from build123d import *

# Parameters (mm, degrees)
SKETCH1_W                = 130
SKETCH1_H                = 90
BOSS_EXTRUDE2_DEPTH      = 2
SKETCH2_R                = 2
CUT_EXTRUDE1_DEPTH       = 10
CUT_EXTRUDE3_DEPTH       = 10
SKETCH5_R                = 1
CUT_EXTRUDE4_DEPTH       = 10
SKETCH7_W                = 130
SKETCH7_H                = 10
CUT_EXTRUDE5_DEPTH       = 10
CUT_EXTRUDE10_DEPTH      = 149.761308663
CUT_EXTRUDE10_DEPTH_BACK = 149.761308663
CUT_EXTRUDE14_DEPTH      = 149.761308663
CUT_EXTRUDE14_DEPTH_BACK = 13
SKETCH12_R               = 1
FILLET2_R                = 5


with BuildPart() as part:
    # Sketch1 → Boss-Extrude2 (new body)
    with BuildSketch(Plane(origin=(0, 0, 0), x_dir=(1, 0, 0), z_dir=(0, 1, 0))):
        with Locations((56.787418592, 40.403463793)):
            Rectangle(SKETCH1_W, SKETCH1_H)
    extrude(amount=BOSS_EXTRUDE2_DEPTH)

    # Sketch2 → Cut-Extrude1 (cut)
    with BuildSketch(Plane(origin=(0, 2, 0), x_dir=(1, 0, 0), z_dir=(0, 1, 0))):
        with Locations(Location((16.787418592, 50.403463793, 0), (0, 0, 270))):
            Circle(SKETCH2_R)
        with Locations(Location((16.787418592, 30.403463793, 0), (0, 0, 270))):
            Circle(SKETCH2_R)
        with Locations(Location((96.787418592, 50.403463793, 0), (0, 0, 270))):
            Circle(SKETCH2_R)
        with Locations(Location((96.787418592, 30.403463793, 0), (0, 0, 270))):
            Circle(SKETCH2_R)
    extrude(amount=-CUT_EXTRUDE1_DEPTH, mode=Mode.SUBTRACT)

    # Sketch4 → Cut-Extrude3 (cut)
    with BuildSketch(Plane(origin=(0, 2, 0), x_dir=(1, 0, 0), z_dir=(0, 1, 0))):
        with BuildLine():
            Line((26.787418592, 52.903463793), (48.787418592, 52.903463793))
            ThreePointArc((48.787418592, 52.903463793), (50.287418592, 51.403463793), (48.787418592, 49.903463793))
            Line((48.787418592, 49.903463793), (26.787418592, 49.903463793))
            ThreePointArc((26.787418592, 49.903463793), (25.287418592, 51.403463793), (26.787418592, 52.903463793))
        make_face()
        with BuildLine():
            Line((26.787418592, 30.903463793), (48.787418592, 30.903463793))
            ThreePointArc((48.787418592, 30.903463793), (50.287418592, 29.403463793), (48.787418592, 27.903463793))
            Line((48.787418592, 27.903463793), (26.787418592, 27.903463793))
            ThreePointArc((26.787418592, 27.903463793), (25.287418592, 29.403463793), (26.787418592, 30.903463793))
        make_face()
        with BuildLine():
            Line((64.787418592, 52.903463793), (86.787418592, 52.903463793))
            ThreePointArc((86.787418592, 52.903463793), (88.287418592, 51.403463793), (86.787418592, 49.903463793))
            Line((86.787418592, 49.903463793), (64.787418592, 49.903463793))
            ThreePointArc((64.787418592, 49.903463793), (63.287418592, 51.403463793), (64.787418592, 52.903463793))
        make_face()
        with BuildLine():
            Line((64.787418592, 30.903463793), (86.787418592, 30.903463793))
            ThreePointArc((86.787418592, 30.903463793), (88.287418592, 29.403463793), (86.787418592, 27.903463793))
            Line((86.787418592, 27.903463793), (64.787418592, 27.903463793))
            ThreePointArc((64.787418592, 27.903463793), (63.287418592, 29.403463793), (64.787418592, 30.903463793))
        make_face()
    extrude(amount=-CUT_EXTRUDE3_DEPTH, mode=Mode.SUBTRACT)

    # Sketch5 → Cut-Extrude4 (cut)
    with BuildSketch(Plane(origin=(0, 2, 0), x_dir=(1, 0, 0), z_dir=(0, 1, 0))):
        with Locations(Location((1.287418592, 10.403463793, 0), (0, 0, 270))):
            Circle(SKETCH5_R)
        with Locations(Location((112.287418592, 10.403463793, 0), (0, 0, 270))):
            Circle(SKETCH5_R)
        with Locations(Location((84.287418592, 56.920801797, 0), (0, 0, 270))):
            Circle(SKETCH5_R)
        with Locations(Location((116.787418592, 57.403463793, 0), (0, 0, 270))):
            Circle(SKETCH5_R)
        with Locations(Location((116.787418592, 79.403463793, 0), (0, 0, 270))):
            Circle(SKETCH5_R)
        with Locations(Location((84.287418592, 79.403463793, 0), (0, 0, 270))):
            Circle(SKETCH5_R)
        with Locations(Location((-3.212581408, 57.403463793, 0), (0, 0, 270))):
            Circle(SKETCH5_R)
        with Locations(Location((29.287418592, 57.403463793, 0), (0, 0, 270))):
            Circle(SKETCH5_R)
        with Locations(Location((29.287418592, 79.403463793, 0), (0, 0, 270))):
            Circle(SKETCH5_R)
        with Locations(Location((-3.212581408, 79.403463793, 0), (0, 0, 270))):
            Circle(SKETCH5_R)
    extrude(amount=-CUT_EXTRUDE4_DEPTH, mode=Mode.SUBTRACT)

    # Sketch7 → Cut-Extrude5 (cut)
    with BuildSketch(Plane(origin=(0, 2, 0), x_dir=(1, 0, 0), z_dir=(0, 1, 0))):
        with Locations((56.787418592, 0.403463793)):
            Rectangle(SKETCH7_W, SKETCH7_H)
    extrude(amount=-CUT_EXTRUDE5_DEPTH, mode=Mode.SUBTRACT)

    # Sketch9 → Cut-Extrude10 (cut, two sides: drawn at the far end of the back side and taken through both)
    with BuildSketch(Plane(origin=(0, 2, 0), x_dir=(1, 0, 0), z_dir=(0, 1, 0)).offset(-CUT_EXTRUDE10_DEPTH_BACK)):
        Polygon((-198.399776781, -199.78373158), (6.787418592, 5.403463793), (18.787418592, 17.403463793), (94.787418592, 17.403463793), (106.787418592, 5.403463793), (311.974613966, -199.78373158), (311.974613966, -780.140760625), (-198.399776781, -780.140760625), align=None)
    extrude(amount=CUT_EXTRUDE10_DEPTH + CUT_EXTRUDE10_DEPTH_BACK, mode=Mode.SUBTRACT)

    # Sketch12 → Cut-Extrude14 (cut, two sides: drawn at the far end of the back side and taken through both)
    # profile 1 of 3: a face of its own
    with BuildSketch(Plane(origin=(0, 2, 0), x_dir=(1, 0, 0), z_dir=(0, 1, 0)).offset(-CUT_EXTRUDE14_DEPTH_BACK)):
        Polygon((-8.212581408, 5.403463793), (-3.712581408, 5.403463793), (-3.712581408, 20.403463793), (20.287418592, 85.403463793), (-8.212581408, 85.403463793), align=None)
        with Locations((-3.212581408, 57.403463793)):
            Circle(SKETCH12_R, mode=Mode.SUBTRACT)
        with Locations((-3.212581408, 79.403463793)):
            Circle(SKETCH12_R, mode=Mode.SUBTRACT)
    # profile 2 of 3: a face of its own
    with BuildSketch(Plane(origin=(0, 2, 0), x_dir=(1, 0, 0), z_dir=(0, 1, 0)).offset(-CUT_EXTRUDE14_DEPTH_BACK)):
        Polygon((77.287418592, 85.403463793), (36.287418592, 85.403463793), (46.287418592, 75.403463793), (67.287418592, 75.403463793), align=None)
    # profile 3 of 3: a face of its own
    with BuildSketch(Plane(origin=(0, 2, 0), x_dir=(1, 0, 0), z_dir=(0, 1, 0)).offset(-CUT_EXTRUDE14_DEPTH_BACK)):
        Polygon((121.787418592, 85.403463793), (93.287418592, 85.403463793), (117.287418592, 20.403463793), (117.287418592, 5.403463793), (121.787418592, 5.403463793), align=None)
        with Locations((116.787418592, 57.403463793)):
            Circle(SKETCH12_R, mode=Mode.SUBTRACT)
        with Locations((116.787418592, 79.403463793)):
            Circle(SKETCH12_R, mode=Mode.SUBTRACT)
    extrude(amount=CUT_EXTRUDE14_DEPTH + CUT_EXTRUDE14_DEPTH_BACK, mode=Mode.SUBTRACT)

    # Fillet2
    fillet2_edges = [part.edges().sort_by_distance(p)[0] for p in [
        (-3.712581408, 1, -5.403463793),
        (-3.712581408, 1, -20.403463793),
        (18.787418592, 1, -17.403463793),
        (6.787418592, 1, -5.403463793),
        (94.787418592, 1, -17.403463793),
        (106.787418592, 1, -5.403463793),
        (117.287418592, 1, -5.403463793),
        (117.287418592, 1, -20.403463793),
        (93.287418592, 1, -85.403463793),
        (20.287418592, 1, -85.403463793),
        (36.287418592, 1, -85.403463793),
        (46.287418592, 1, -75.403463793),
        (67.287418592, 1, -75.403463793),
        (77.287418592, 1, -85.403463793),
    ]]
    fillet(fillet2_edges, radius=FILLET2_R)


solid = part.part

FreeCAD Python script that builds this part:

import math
import FreeCAD as App
import Part
import Sketcher
Q = App.Units.Quantity


def edges_at(feature, points):
    """Names of the edges that pass closest to the given points."""
    edges = feature.Shape.Edges
    near = lambda p: min(range(len(edges)), key=lambda i: edges[i].distToShape(Part.Vertex(*p))[0])
    return sorted({f"Edge{near(p) + 1}" for p in points})

doc = App.newDocument("Part")
body = doc.addObject("PartDesign::Body", "Body")

sketch1 = body.newObject("Sketcher::SketchObject", "Sketch")
sketch1.AttachmentSupport = (doc.getObject("XZ_Plane"), [""])
sketch1.MapMode = "FlatFace"
sketch1.addGeometry([
    Part.LineSegment(App.Vector(-8, -85, 0), App.Vector(-8, 5, 0)),
    Part.LineSegment(App.Vector(-8, 5, 0), App.Vector(122, 5, 0)),
    Part.LineSegment(App.Vector(122, 5, 0), App.Vector(122, -85, 0)),
    Part.LineSegment(App.Vector(122, -85, 0), App.Vector(-8, -85, 0)),
], False)
sketch1.addConstraint([
    Sketcher.Constraint("Coincident", 0, 2, 1, 1),
    Sketcher.Constraint("Coincident", 1, 2, 2, 1),
    Sketcher.Constraint("Coincident", 2, 2, 3, 1),
    Sketcher.Constraint("Coincident", 3, 2, 0, 1),
    Sketcher.Constraint("Vertical", 0),
    Sketcher.Constraint("Horizontal", 1),
    Sketcher.Constraint("Vertical", 2),
    Sketcher.Constraint("Horizontal", 3),
    Sketcher.Constraint("DistanceX", 1, 1, 1, 2, 130.0),
    Sketcher.Constraint("DistanceY", 0, 1, 0, 2, 90.0),
    Sketcher.Constraint("DistanceX", 0, 2, -1, 1, 8.212581),
    Sketcher.Constraint("DistanceY", -1, 1, 0, 2, 4.596536),
])
pad1 = body.newObject("PartDesign::Pad", "Pad")
pad1.Profile = sketch1
pad1.Length = 2
pad1.Reversed = True

sketch2 = body.newObject("Sketcher::SketchObject", "Sketch001")
sketch2.AttachmentSupport = (doc.getObject("XZ_Plane"), [""])
sketch2.MapMode = "FlatFace"
sketch2.AttachmentOffset = App.Placement(App.Vector(0, 0, -2), App.Rotation())
sketch2.addGeometry([
    Part.Circle(App.Vector(16.8, -50.4, 0), App.Vector(0, 0, 1), 2),
    Part.Circle(App.Vector(16.8, -30.4, 0), App.Vector(0, 0, 1), 2),
    Part.Circle(App.Vector(96.8, -50.4, 0), App.Vector(0, 0, 1), 2),
    Part.Circle(App.Vector(96.8, -30.4, 0), App.Vector(0, 0, 1), 2),
], False)
sketch2.addConstraint([
    Sketcher.Constraint("Equal", 0, 1),
    Sketcher.Constraint("Equal", 1, 2),
    Sketcher.Constraint("Equal", 2, 3),
    Sketcher.Constraint("Horizontal", 0, 3, 2, 3),
    Sketcher.Constraint("Horizontal", 1, 3, 3, 3),
    Sketcher.Constraint("Vertical", 0, 3, 1, 3),
    Sketcher.Constraint("Vertical", 2, 3, 3, 3),
    Sketcher.Constraint("Diameter", 0, 4.0),
    Sketcher.Constraint("DistanceY", 0, 3, 1, 3, 20.0),
    Sketcher.Constraint("DistanceX", 0, 3, 2, 3, 80.0),
    Sketcher.Constraint("DistanceX", -1, 1, 0, 3, 16.787419),
    Sketcher.Constraint("DistanceY", 0, 3, -1, 1, 50.403464),
])
pocket1 = body.newObject("PartDesign::Pocket", "Pocket")
pocket1.Profile = sketch2
pocket1.Length = 10
pocket1.Reversed = True

sketch3 = body.newObject("Sketcher::SketchObject", "Sketch002")
sketch3.AttachmentSupport = (doc.getObject("XZ_Plane"), [""])
sketch3.MapMode = "FlatFace"
sketch3.AttachmentOffset = App.Placement(App.Vector(0, 0, -2), App.Rotation())
sketch3.addGeometry([
    Part.LineSegment(App.Vector(48.8, -52.9, 0), App.Vector(26.8, -52.9, 0)),
    Part.ArcOfCircle(Part.Circle(App.Vector(26.8, -51.4, 0), App.Vector(0, 0, 1), 1.5), math.radians(90), math.radians(270)),
    Part.LineSegment(App.Vector(26.8, -49.9, 0), App.Vector(48.8, -49.9, 0)),
    Part.ArcOfCircle(Part.Circle(App.Vector(48.8, -51.4, 0), App.Vector(0, 0, 1), 1.5), math.radians(-90), math.radians(90)),
    Part.LineSegment(App.Vector(48.8, -30.9, 0), App.Vector(26.8, -30.9, 0)),
    Part.ArcOfCircle(Part.Circle(App.Vector(26.8, -29.4, 0), App.Vector(0, 0, 1), 1.5), math.radians(90), math.radians(270)),
    Part.LineSegment(App.Vector(26.8, -27.9, 0), App.Vector(48.8, -27.9, 0)),
    Part.ArcOfCircle(Part.Circle(App.Vector(48.8, -29.4, 0), App.Vector(0, 0, 1), 1.5), math.radians(-90), math.radians(90)),
    Part.LineSegment(App.Vector(86.8, -52.9, 0), App.Vector(64.8, -52.9, 0)),
    Part.ArcOfCircle(Part.Circle(App.Vector(64.8, -51.4, 0), App.Vector(0, 0, 1), 1.5), math.radians(90), math.radians(270)),
    Part.LineSegment(App.Vector(64.8, -49.9, 0), App.Vector(86.8, -49.9, 0)),
    Part.ArcOfCircle(Part.Circle(App.Vector(86.8, -51.4, 0), App.Vector(0, 0, 1), 1.5), math.radians(-90), math.radians(90)),
    Part.LineSegment(App.Vector(86.8, -30.9, 0), App.Vector(64.8, -30.9, 0)),
    Part.ArcOfCircle(Part.Circle(App.Vector(64.8, -29.4, 0), App.Vector(0, 0, 1), 1.5), math.radians(90), math.radians(270)),
    Part.LineSegment(App.Vector(64.8, -27.9, 0), App.Vector(86.8, -27.9, 0)),
    Part.ArcOfCircle(Part.Circle(App.Vector(86.8, -29.4, 0), App.Vector(0, 0, 1), 1.5), math.radians(-90), math.radians(90)),
], False)
sketch3.addConstraint([
    Sketcher.Constraint("Tangent", 0, 2, 1, 2),
    Sketcher.Constraint("Tangent", 1, 1, 2, 1),
    Sketcher.Constraint("Tangent", 2, 2, 3, 2),
    Sketcher.Constraint("Tangent", 3, 1, 0, 1),
    Sketcher.Constraint("Tangent", 4, 2, 5, 2),
    Sketcher.Constraint("Tangent", 5, 1, 6, 1),
    Sketcher.Constraint("Tangent", 6, 2, 7, 2),
    Sketcher.Constraint("Tangent", 7, 1, 4, 1),
    Sketcher.Constraint("Tangent", 8, 2, 9, 2),
    Sketcher.Constraint("Tangent", 9, 1, 10, 1),
    Sketcher.Constraint("Tangent", 10, 2, 11, 2),
    Sketcher.Constraint("Tangent", 11, 1, 8, 1),
    Sketcher.Constraint("Tangent", 12, 2, 13, 2),
    Sketcher.Constraint("Tangent", 13, 1, 14, 1),
    Sketcher.Constraint("Tangent", 14, 2, 15, 2),
    Sketcher.Constraint("Tangent", 15, 1, 12, 1),
    Sketcher.Constraint("Horizontal", 0),
    Sketcher.Constraint("Horizontal", 2),
    Sketcher.Constraint("Horizontal", 4),
    Sketcher.Constraint("Horizontal", 6),
    Sketcher.Constraint("Horizontal", 8),
    Sketcher.Constraint("Horizontal", 10),
    Sketcher.Constraint("Horizontal", 12),
    Sketcher.Constraint("Horizontal", 14),
    Sketcher.Constraint("Equal", 3, 5),
    Sketcher.Constraint("Equal", 7, 9),
    Sketcher.Constraint("Equal", 11, 13),
    Sketcher.Constraint("Horizontal", 3, 3, 9, 3),
    Sketcher.Constraint("Horizontal", 7, 3, 13, 3),
    Sketcher.Constraint("Vertical", 1, 3, 5, 3),
    Sketcher.Constraint("Vertical", 3, 3, 7, 3),
    Sketcher.Constraint("Vertical", 9, 3, 13, 3),
    Sketcher.Constraint("Vertical", 11, 3, 15, 3),
    Sketcher.Constraint("Equal", 6, 8),
    Sketcher.Constraint("Radius", 1, 1.5),
    Sketcher.Constraint("DistanceX", 0, 2, 0, 1, 22.0),
    Sketcher.Constraint("DistanceY", 1, 3, 5, 3, 22.0),
    Sketcher.Constraint("DistanceX", 3, 3, 9, 3, 16.0),
    Sketcher.Constraint("DistanceX", -1, 1, 1, 3, 26.787419),
    Sketcher.Constraint("DistanceY", 1, 3, -1, 1, 51.403464),
])
pocket2 = body.newObject("PartDesign::Pocket", "Pocket001")
pocket2.Profile = sketch3
pocket2.Length = 10
pocket2.Reversed = True

sketch4 = body.newObject("Sketcher::SketchObject", "Sketch003")
sketch4.AttachmentSupport = (doc.getObject("XZ_Plane"), [""])
sketch4.MapMode = "FlatFace"
sketch4.AttachmentOffset = App.Placement(App.Vector(0, 0, -2), App.Rotation())
sketch4.addGeometry([
    Part.Circle(App.Vector(1.3, -10.4, 0), App.Vector(0, 0, 1), 1),
    Part.Circle(App.Vector(112.3, -10.4, 0), App.Vector(0, 0, 1), 1),
    Part.Circle(App.Vector(84.3, -56.9, 0), App.Vector(0, 0, 1), 1),
    Part.Circle(App.Vector(116.8, -57.4, 0), App.Vector(0, 0, 1), 1),
    Part.Circle(App.Vector(116.8, -79.4, 0), App.Vector(0, 0, 1), 1),
    Part.Circle(App.Vector(84.3, -79.4, 0), App.Vector(0, 0, 1), 1),
    Part.Circle(App.Vector(-3.2, -57.4, 0), App.Vector(0, 0, 1), 1),
    Part.Circle(App.Vector(29.3, -57.4, 0), App.Vector(0, 0, 1), 1),
    Part.Circle(App.Vector(29.3, -79.4, 0), App.Vector(0, 0, 1), 1),
    Part.Circle(App.Vector(-3.2, -79.4, 0), App.Vector(0, 0, 1), 1),
], False)
sketch4.addConstraint([
    Sketcher.Constraint("Equal", 0, 1),
    Sketcher.Constraint("Equal", 1, 2),
    Sketcher.Constraint("Equal", 2, 3),
    Sketcher.Constraint("Equal", 3, 4),
    Sketcher.Constraint("Equal", 4, 5),
    Sketcher.Constraint("Equal", 5, 6),
    Sketcher.Constraint("Equal", 6, 7),
    Sketcher.Constraint("Equal", 7, 8),
    Sketcher.Constraint("Equal", 8, 9),
    Sketcher.Constraint("Horizontal", 0, 3, 1, 3),
    Sketcher.Constraint("Horizontal", 4, 3, 5, 3),
    Sketcher.Constraint("Horizontal", 3, 3, 6, 3),
    Sketcher.Constraint("Horizontal", 6, 3, 7, 3),
    Sketcher.Constraint("Horizontal", 5, 3, 8, 3),
    Sketcher.Constraint("Horizontal", 8, 3, 9, 3),
    Sketcher.Constraint("Vertical", 3, 3, 4, 3),
    Sketcher.Constraint("Vertical", 2, 3, 5, 3),
    Sketcher.Constraint("Vertical", 7, 3, 8, 3),
    Sketcher.Constraint("Vertical", 6, 3, 9, 3),
    Sketcher.Constraint("Diameter", 0, 2.0),
    Sketcher.Constraint("DistanceX", 0, 3, 1, 3, 111.0),
    Sketcher.Constraint("DistanceX", 2, 3, 1, 3, 28.0),
    Sketcher.Constraint("DistanceY", 3, 3, 1, 3, 47.0),
    Sketcher.Constraint("DistanceY", 4, 3, 3, 3, 22.0),
    Sketcher.Constraint("DistanceX", 6, 3, 3, 3, 120.0),
    Sketcher.Constraint("DistanceX", 0, 3, 7, 3, 28.0),
    Sketcher.Constraint("DistanceX", 2, 3, 3, 3, 32.5),
    Sketcher.Constraint("DistanceY", 2, 3, -1, 1, 56.920802),
    Sketcher.Constraint("DistanceX", -1, 1, 0, 3, 1.287419),
    Sketcher.Constraint("DistanceY", 2, 3, 1, 3, 46.517338),
])
pocket3 = body.newObject("PartDesign::Pocket", "Pocket002")
pocket3.Profile = sketch4
pocket3.Length = 10
pocket3.Reversed = True

sketch5 = body.newObject("Sketcher::SketchObject", "Sketch004")
sketch5.AttachmentSupport = (doc.getObject("XZ_Plane"), [""])
sketch5.MapMode = "FlatFace"
sketch5.AttachmentOffset = App.Placement(App.Vector(0, 0, -2), App.Rotation())
sketch5.addGeometry([
    Part.LineSegment(App.Vector(-8, -5, 0), App.Vector(-8, 5, 0)),
    Part.LineSegment(App.Vector(-8, 5, 0), App.Vector(122, 5, 0)),
    Part.LineSegment(App.Vector(122, 5, 0), App.Vector(122, -5, 0)),
    Part.LineSegment(App.Vector(122, -5, 0), App.Vector(-8, -5, 0)),
], False)
sketch5.addConstraint([
    Sketcher.Constraint("Coincident", 0, 2, 1, 1),
    Sketcher.Constraint("Coincident", 1, 2, 2, 1),
    Sketcher.Constraint("Coincident", 2, 2, 3, 1),
    Sketcher.Constraint("Coincident", 3, 2, 0, 1),
    Sketcher.Constraint("Vertical", 0),
    Sketcher.Constraint("Horizontal", 1),
    Sketcher.Constraint("Vertical", 2),
    Sketcher.Constraint("Horizontal", 3),
    Sketcher.Constraint("DistanceX", 1, 1, 1, 2, 130.0),
    Sketcher.Constraint("DistanceY", 0, 1, 0, 2, 10.0),
    Sketcher.Constraint("DistanceX", 0, 2, -1, 1, 8.212581),
    Sketcher.Constraint("DistanceY", -1, 1, 0, 2, 4.596536),
])
pocket4 = body.newObject("PartDesign::Pocket", "Pocket003")
pocket4.Profile = sketch5
pocket4.Length = 10
pocket4.Reversed = True

sketch6 = body.newObject("Sketcher::SketchObject", "Sketch005")
sketch6.AttachmentSupport = (doc.getObject("XZ_Plane"), [""])
sketch6.MapMode = "FlatFace"
sketch6.AttachmentOffset = App.Placement(App.Vector(0, 0, -2), App.Rotation())
sketch6.addGeometry([
    Part.LineSegment(App.Vector(19, -17, 0), App.Vector(-198, 200, 0)),
    Part.LineSegment(App.Vector(-198, 200, 0), App.Vector(-198, 780, 0)),
    Part.LineSegment(App.Vector(-198, 780, 0), App.Vector(312, 780, 0)),
    Part.LineSegment(App.Vector(312, 780, 0), App.Vector(312, 200, 0)),
    Part.LineSegment(App.Vector(312, 200, 0), App.Vector(107, -5, 0)),
    Part.LineSegment(App.Vector(107, -5, 0), App.Vector(95, -17, 0)),
    Part.LineSegment(App.Vector(95, -17, 0), App.Vector(19, -17, 0)),
], False)
sketch6.addConstraint([
    Sketcher.Constraint("Coincident", 0, 2, 1, 1),
    Sketcher.Constraint("Coincident", 1, 2, 2, 1),
    Sketcher.Constraint("Coincident", 2, 2, 3, 1),
    Sketcher.Constraint("Coincident", 3, 2, 4, 1),
    Sketcher.Constraint("Coincident", 4, 2, 5, 1),
    Sketcher.Constraint("Coincident", 5, 2, 6, 1),
    Sketcher.Constraint("Coincident", 6, 2, 0, 1),
    Sketcher.Constraint("Vertical", 1),
    Sketcher.Constraint("Horizontal", 2),
    Sketcher.Constraint("Vertical", 3),
    Sketcher.Constraint("Horizontal", 6),
    Sketcher.Constraint("Perpendicular", 0, 4),
    Sketcher.Constraint("Parallel", 4, 5),
    Sketcher.Constraint("Horizontal", 0, 2, 3, 2),
    Sketcher.Constraint("DistanceX", 6, 2, 6, 1, 76.0),
    Sketcher.Constraint("Angle", 0, Q("135 deg")),
    Sketcher.Constraint("DistanceX", 5, 2, 4, 2, 12.0),
    Sketcher.Constraint("DistanceX", 2, 1, 2, 2, 510.374391),
    Sketcher.Constraint("DistanceY", 1, 1, 1, 2, 580.357029),
    Sketcher.Constraint("DistanceY", -1, 1, 0, 2, 199.783732),
    Sketcher.Constraint("DistanceX", -1, 1, 4, 2, 106.787419),
])
pocket5 = body.newObject("PartDesign::Pocket", "Pocket004")
pocket5.Profile = sketch6
pocket5.Type = "ThroughAll"
pocket5.Midplane = True

sketch7 = body.newObject("Sketcher::SketchObject", "Sketch006")
sketch7.AttachmentSupport = (doc.getObject("XZ_Plane"), [""])
sketch7.MapMode = "FlatFace"
sketch7.AttachmentOffset = App.Placement(App.Vector(0, 0, -2), App.Rotation())
sketch7.addGeometry([
    Part.LineSegment(App.Vector(-8.2, -5.4, 0), App.Vector(-3.7, -5.4, 0)),
    Part.LineSegment(App.Vector(-3.7, -5.4, 0), App.Vector(-3.7, -20.4, 0)),
    Part.LineSegment(App.Vector(-3.7, -20.4, 0), App.Vector(20.3, -85.4, 0)),
    Part.LineSegment(App.Vector(20.3, -85.4, 0), App.Vector(-8.2, -85.4, 0)),
    Part.LineSegment(App.Vector(-8.2, -85.4, 0), App.Vector(-8.2, -5.4, 0)),
    Part.Circle(App.Vector(-3.2, -57.4, 0), App.Vector(0, 0, 1), 1),
    Part.Circle(App.Vector(-3.2, -79.4, 0), App.Vector(0, 0, 1), 1),
    Part.LineSegment(App.Vector(77.3, -85.4, 0), App.Vector(36.3, -85.4, 0)),
    Part.LineSegment(App.Vector(36.3, -85.4, 0), App.Vector(46.3, -75.4, 0)),
    Part.LineSegment(App.Vector(46.3, -75.4, 0), App.Vector(67.3, -75.4, 0)),
    Part.LineSegment(App.Vector(67.3, -75.4, 0), App.Vector(77.3, -85.4, 0)),
    Part.LineSegment(App.Vector(121.8, -85.4, 0), App.Vector(93.3, -85.4, 0)),
    Part.LineSegment(App.Vector(93.3, -85.4, 0), App.Vector(117.3, -20.4, 0)),
    Part.LineSegment(App.Vector(117.3, -20.4, 0), App.Vector(117.3, -5.4, 0)),
    Part.LineSegment(App.Vector(117.3, -5.4, 0), App.Vector(121.8, -5.4, 0)),
    Part.LineSegment(App.Vector(121.8, -5.4, 0), App.Vector(121.8, -85.4, 0)),
    Part.Circle(App.Vector(116.8, -57.4, 0), App.Vector(0, 0, 1), 1),
    Part.Circle(App.Vector(116.8, -79.4, 0), App.Vector(0, 0, 1), 1),
], False)
sketch7.addConstraint([
    Sketcher.Constraint("Coincident", 0, 2, 1, 1),
    Sketcher.Constraint("Coincident", 1, 2, 2, 1),
    Sketcher.Constraint("Coincident", 2, 2, 3, 1),
    Sketcher.Constraint("Coincident", 3, 2, 4, 1),
    Sketcher.Constraint("Coincident", 4, 2, 0, 1),
    Sketcher.Constraint("Coincident", 7, 2, 8, 1),
    Sketcher.Constraint("Coincident", 8, 2, 9, 1),
    Sketcher.Constraint("Coincident", 9, 2, 10, 1),
    Sketcher.Constraint("Coincident", 10, 2, 7, 1),
    Sketcher.Constraint("Coincident", 11, 2, 12, 1),
    Sketcher.Constraint("Coincident", 12, 2, 13, 1),
    Sketcher.Constraint("Coincident", 13, 2, 14, 1),
    Sketcher.Constraint("Coincident", 14, 2, 15, 1),
    Sketcher.Constraint("Coincident", 15, 2, 11, 1),
    Sketcher.Constraint("Horizontal", 0),
    Sketcher.Constraint("Vertical", 1),
    Sketcher.Constraint("Horizontal", 3),
    Sketcher.Constraint("Vertical", 4),
    Sketcher.Constraint("Horizontal", 7),
    Sketcher.Constraint("Horizontal", 9),
    Sketcher.Constraint("Horizontal", 11),
    Sketcher.Constraint("Vertical", 13),
    Sketcher.Constraint("Horizontal", 14),
    Sketcher.Constraint("Vertical", 15),
    Sketcher.Constraint("Equal", 5, 6),
    Sketcher.Constraint("Equal", 6, 16),
    Sketcher.Constraint("Equal", 16, 17),
    Sketcher.Constraint("Perpendicular", 8, 10),
    Sketcher.Constraint("Horizontal", 5, 3, 16, 3),
    Sketcher.Constraint("Horizontal", 6, 3, 17, 3),
    Sketcher.Constraint("Horizontal", 3, 2, 7, 2),
    Sketcher.Constraint("Horizontal", 10, 2, 11, 2),
    Sketcher.Constraint("Horizontal", 1, 2, 12, 2),
    Sketcher.Constraint("Horizontal", 4, 2, 13, 2),
    Sketcher.Constraint("Vertical", 5, 3, 6, 3),
    Sketcher.Constraint("Vertical", 16, 3, 17, 3),
    Sketcher.Constraint("Equal", 3, 11),
    Sketcher.Constraint("Equal", 0, 14),
    Sketcher.Constraint("Equal", 8, 10),
    Sketcher.Constraint("Diameter", 5, 2.0),
    Sketcher.Constraint("DistanceX", 7, 2, 7, 1, 41.0),
    Sketcher.Constraint("DistanceX", 9, 1, 9, 2, 21.0),
    Sketcher.Constraint("DistanceY", 1, 2, 1, 1, 15.0),
    Sketcher.Constraint("DistanceY", 4, 1, 4, 2, 80.0),
    Sketcher.Constraint("DistanceX", 0, 1, 0, 2, 4.5),
    Sketcher.Constraint("DistanceX", 3, 2, 3, 1, 28.5),
    Sketcher.Constraint("DistanceY", 6, 3, 5, 3, 22.0),
    Sketcher.Constraint("DistanceX", 5, 3, 16, 3, 120.0),
    Sketcher.Constraint("DistanceY", 5, 3, 0, 2, 52.0),
    Sketcher.Constraint("DistanceX", 3, 2, 6, 3, 5.0),
    Sketcher.Constraint("DistanceX", 2, 2, 7, 2, 16.0),
    Sketcher.Constraint("DistanceX", 10, 2, 11, 2, 16.0),
    Sketcher.Constraint("DistanceX", 5, 3, -1, 1, 3.212581),
    Sketcher.Constraint("DistanceY", 5, 3, -1, 1, 57.403464),
])
pocket6 = body.newObject("PartDesign::Pocket", "Pocket005")
pocket6.Profile = sketch7
pocket6.Type = "ThroughAll"
pocket6.Midplane = True
doc.recompute()

fillet = body.newObject("PartDesign::Fillet", "Fillet")
fillet.Base = (pocket6, edges_at(pocket6, [
    (-3.713, 1, -5.403),
    (-3.713, 1, -20.403),
    (18.787, 1, -17.403),
    (6.787, 1, -5.403),
    (94.787, 1, -17.403),
    (106.787, 1, -5.403),
    (117.287, 1, -5.403),
    (117.287, 1, -20.403),
    (93.287, 1, -85.403),
    (20.287, 1, -85.403),
    (36.287, 1, -85.403),
    (46.287, 1, -75.403),
    (67.287, 1, -75.403),
    (77.287, 1, -85.403),
]))
fillet.Radius = 5

doc.recompute()
